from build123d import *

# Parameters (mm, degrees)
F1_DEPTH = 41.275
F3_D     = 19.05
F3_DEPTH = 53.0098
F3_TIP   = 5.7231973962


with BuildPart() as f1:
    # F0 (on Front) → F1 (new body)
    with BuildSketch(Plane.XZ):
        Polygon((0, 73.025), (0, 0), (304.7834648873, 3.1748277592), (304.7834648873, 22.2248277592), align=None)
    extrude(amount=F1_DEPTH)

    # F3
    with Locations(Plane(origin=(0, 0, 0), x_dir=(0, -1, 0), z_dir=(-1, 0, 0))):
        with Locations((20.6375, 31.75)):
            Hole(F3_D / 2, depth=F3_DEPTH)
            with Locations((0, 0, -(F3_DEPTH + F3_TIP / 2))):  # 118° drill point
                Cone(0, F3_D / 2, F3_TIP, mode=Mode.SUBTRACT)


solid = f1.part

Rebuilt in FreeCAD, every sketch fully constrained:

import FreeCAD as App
import Part
import Sketcher
from FreeCAD import Vector
Q = App.Units.Quantity

doc = App.newDocument("Part")
body = doc.addObject("PartDesign::Body", "Body")

sketch1 = doc.addObject("Sketcher::SketchObject", "Sketch")
body.addObject(sketch1)
sketch1.AttachmentSupport = (doc.XZ_Plane, [""])
sketch1.MapMode = "FlatFace"
sketch1.addGeometry([
    Part.LineSegment(Vector(0, 73, 0), Vector(0, 0, 0)),
    Part.LineSegment(Vector(0, 0, 0), Vector(305, 3, 0)),
    Part.LineSegment(Vector(305, 3, 0), Vector(305, 22, 0)),
    Part.LineSegment(Vector(305, 22, 0), Vector(0, 73, 0)),
], False)
sketch1.addConstraint([
    Sketcher.Constraint("Coincident", 0, 2, 1, 1),
    Sketcher.Constraint("Coincident", 1, 2, 2, 1),
    Sketcher.Constraint("Coincident", 2, 2, 3, 1),
    Sketcher.Constraint("Coincident", 3, 2, 0, 1),
    Sketcher.Constraint("Vertical", 0),
    Sketcher.Constraint("Vertical", 2),
    Sketcher.Constraint("Coincident", 0, 2, -1, 1),
    Sketcher.Constraint("Distance", 1, Q("12 in")),
    Sketcher.Constraint("DistanceY", 2, 1, 2, 2, Q("0.75 in")),
    Sketcher.Constraint("DistanceY", 0, 2, 0, 1, Q("2.875 in")),
    Sketcher.Constraint("Distance", 3, Q("308.988055 mm")),
])
pad1 = doc.addObject("PartDesign::Pad", "Pad")
body.addObject(pad1)
pad1.Profile = sketch1
pad1.Length = Q("1.625 in")

sketch2 = doc.addObject("Sketcher::SketchObject", "Sketch001")
body.addObject(sketch2)
sketch2.AttachmentSupport = (doc.YZ_Plane, [""])
sketch2.MapMode = "FlatFace"
sketch2.addGeometry(Part.Circle(Vector(-21, 32, 0), Vector(0, 0, 1), 10), False)
sketch2.addConstraint([
    Sketcher.Constraint("Diameter", 0, Q("0.75 in")),
    Sketcher.Constraint("DistanceY", -1, 1, 0, 3, Q("1.25 in")),
    Sketcher.Constraint("DistanceX", 0, 3, -1, 1, Q("0.8125 in")),
])
doc.recompute()
hole = doc.addObject("PartDesign::Hole", "Hole")
body.addObject(hole)
hole.Profile = sketch2
hole.ThreadType = "None"
hole.Diameter = Q("0.75 in")
hole.DepthType = "Dimension"
hole.Depth = Q("2.087 in")
hole.DrillPoint = "Angled"
hole.DrillPointAngle = 118
hole.Reversed = True

doc.recompute()
